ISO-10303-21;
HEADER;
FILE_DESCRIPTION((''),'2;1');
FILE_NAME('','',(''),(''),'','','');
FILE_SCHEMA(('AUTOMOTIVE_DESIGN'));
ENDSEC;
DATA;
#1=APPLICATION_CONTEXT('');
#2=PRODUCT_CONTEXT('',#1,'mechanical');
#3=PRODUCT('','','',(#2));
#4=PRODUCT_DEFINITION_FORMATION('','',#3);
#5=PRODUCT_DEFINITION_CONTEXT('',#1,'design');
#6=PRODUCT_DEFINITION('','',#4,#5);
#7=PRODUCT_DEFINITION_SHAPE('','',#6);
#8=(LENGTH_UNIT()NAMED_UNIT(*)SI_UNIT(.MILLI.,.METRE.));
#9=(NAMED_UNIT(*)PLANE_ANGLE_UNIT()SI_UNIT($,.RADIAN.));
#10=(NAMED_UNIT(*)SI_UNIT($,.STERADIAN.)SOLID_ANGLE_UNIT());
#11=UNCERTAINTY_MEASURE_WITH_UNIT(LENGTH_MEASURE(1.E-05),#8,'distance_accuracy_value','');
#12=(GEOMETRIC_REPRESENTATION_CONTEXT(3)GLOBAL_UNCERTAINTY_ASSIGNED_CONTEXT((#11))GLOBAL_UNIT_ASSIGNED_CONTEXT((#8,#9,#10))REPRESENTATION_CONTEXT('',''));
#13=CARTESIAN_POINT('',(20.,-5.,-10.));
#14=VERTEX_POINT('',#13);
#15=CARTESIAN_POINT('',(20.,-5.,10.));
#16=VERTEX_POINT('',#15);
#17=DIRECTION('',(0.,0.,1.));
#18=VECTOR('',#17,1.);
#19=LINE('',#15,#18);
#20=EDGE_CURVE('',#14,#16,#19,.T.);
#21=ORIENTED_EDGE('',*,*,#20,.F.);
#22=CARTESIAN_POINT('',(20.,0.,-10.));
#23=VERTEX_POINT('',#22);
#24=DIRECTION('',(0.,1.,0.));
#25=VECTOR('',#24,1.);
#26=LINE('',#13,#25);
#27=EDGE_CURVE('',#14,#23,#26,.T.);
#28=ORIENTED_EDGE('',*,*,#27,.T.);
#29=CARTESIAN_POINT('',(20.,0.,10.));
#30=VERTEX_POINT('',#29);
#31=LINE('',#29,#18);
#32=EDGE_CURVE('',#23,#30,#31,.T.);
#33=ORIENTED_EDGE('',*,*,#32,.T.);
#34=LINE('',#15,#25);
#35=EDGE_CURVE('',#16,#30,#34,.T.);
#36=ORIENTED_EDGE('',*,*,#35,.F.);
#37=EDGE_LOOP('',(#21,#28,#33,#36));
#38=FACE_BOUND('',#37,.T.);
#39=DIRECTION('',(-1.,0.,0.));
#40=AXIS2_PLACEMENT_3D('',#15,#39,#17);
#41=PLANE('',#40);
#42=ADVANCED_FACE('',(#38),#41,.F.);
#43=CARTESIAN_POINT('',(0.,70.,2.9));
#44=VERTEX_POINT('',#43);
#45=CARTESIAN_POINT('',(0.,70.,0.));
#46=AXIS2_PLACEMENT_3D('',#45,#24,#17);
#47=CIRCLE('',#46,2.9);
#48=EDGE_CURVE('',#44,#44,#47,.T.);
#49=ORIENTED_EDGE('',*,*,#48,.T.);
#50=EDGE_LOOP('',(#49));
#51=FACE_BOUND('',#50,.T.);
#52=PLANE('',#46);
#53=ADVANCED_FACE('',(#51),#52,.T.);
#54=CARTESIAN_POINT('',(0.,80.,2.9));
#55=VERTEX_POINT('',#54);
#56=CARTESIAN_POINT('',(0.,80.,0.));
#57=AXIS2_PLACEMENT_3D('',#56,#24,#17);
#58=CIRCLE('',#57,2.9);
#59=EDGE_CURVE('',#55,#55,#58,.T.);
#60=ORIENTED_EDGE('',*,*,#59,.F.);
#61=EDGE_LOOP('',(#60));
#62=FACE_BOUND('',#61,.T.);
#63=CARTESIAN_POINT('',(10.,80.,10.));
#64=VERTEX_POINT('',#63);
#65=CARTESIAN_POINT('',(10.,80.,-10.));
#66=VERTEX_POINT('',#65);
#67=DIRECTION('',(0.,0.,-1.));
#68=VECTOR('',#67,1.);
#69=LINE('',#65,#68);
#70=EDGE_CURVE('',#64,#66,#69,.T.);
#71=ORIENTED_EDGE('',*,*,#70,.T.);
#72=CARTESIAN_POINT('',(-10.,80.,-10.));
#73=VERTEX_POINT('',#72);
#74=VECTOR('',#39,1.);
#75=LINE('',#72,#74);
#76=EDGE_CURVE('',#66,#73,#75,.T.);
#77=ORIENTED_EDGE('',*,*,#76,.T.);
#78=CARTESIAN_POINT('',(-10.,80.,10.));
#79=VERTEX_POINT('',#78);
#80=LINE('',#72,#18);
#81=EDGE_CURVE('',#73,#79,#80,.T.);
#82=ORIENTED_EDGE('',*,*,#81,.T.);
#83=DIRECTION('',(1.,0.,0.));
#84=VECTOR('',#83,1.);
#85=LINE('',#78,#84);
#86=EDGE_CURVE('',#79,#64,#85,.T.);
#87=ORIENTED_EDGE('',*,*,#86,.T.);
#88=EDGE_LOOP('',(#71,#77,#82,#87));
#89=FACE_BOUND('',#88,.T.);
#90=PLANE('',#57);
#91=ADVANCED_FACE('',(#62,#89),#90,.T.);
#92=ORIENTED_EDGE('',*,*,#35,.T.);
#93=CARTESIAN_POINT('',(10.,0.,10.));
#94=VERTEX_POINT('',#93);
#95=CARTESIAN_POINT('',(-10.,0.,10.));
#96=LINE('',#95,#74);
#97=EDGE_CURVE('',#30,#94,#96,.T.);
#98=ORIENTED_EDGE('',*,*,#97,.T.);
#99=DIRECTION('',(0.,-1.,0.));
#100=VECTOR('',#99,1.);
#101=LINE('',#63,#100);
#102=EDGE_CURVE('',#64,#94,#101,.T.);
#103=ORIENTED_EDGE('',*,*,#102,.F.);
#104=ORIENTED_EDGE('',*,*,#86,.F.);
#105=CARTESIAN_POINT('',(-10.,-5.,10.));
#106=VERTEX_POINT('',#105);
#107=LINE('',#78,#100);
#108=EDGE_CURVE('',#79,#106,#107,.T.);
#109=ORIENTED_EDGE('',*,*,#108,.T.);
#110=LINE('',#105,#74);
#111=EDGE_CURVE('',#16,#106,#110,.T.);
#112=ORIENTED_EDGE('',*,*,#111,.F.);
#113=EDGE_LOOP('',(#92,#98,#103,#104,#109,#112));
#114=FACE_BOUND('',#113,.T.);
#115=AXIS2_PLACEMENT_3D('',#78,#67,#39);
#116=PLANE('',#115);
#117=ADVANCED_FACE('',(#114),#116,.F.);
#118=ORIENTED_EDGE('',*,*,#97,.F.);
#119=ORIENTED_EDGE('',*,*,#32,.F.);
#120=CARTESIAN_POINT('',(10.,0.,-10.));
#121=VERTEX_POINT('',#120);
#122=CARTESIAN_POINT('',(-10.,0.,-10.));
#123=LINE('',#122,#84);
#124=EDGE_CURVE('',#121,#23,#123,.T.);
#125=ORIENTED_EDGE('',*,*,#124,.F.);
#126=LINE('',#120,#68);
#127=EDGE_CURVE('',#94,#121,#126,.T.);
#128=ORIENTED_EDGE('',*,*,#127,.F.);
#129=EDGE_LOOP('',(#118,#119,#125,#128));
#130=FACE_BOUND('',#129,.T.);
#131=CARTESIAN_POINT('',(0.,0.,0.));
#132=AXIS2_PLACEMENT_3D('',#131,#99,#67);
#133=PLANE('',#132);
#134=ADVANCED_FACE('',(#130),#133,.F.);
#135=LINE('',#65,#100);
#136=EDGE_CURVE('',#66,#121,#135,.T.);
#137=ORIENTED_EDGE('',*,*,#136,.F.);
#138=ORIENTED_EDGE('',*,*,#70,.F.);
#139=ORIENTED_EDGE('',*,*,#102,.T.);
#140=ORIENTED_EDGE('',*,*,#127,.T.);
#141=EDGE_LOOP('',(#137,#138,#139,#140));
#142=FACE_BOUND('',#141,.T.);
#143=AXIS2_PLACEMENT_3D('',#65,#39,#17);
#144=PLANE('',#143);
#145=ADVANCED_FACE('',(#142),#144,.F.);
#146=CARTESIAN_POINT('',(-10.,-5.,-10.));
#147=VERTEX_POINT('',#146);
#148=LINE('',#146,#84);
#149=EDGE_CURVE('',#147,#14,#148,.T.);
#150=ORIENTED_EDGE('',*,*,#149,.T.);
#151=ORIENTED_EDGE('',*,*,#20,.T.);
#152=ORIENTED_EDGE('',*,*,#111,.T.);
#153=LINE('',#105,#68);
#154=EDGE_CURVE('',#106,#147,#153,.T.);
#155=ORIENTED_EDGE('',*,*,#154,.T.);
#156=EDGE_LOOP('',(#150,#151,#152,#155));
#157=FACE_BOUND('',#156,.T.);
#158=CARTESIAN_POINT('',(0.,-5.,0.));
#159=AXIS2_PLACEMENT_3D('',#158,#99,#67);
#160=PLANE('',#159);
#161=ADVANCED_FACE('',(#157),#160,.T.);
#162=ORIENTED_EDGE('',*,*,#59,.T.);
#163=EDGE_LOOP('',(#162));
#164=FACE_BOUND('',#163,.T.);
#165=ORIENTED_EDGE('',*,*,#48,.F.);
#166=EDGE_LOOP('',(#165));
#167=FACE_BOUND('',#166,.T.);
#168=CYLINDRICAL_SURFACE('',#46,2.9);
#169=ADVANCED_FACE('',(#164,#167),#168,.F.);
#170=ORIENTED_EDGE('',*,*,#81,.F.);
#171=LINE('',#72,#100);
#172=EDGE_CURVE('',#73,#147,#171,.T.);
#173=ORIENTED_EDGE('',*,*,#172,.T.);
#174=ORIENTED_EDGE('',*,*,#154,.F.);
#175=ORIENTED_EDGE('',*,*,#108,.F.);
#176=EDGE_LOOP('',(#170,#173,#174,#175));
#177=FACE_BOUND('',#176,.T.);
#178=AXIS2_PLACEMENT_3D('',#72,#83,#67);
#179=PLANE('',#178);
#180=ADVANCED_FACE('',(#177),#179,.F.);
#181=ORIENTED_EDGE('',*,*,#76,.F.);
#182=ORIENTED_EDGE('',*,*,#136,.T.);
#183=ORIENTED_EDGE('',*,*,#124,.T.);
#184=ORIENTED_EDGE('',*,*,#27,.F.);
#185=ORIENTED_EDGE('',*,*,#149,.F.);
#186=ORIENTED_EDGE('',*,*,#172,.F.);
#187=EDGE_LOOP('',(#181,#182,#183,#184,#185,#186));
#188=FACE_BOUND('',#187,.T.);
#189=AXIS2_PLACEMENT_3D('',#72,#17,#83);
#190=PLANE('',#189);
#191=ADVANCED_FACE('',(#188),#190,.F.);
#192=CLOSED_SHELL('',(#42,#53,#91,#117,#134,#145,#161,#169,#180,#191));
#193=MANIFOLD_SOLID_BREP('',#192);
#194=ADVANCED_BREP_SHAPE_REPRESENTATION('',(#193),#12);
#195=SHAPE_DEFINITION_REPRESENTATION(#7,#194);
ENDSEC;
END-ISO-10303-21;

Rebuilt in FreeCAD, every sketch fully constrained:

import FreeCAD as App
import Part
import Sketcher
from FreeCAD import Vector
Q = App.Units.Quantity


def add_polygon(sketch, points):
    """Adds a closed chain of lines whose ends are joined by coincident constraints."""
    first, n = sketch.GeometryCount, len(points)
    for a, b in zip(points, points[1:] + points[:1]):
        sketch.addGeometry(Part.LineSegment(App.Vector(*a, 0), App.Vector(*b, 0)), False)
    for i in range(n):
        sketch.addConstraint(Sketcher.Constraint("Coincident", first + i, 2, first + (i + 1) % n, 1))

doc = App.newDocument("Part")
body = doc.addObject("PartDesign::Body", "Body")

# Sketch on XZ plane
sketch1 = body.newObject("Sketcher::SketchObject", "Sketch")
sketch1.AttachmentSupport = (doc.getObject("XZ_Plane"), [""])
sketch1.MapMode = "FlatFace"
add_polygon(sketch1, [(-10, -10), (-10, 10), (10, 10), (10, -10)])  # lines 0-3
sketch1.addConstraint(Sketcher.Constraint("Vertical", 0))
sketch1.addConstraint(Sketcher.Constraint("Horizontal", 1))
sketch1.addConstraint(Sketcher.Constraint("Vertical", 2))
sketch1.addConstraint(Sketcher.Constraint("Horizontal", 3))
sketch1.addConstraint(Sketcher.Constraint("Symmetric", 0, 2, 2, 2, -1, 1))
sketch1.addConstraint(Sketcher.Constraint("Equal", 3, 0))
sketch1.addConstraint(Sketcher.Constraint("DistanceX", 1, 1, 1, 2, Q("20 mm")))
pad1 = body.newObject("PartDesign::Pad", "Pad")
pad1.Profile = sketch1
pad1.Length = 80
pad1.Reversed = True

# Sketch on XZ plane
sketch2 = body.newObject("Sketcher::SketchObject", "Sketch001")
sketch2.AttachmentSupport = (doc.getObject("XZ_Plane"), [""])
sketch2.MapMode = "FlatFace"
add_polygon(sketch2, [(20, -10), (20, 10), (-10, 10), (-10, -10)])  # lines 0-3
sketch2.addConstraint(Sketcher.Constraint("Vertical", 0))
sketch2.addConstraint(Sketcher.Constraint("Horizontal", 1))
sketch2.addConstraint(Sketcher.Constraint("Vertical", 2))
sketch2.addConstraint(Sketcher.Constraint("Horizontal", 3))
sketch2.addConstraint(Sketcher.Constraint("DistanceX", 1, 2, 1, 1, Q("30 mm")))
sketch2.addConstraint(Sketcher.Constraint("DistanceY", 0, 1, 0, 2, Q("20 mm")))
sketch2.addConstraint(Sketcher.Constraint("DistanceX", -1, 1, 0, 2, Q("20 mm")))
sketch2.addConstraint(Sketcher.Constraint("DistanceY", -1, 1, 0, 2, Q("10 mm")))
pad2 = body.newObject("PartDesign::Pad", "Pad001")
pad2.Profile = sketch2
pad2.Length = 5

# Sketch on XZ plane
sketch3 = body.newObject("Sketcher::SketchObject", "Sketch002")
sketch3.AttachmentSupport = (doc.getObject("XZ_Plane"), [""])
sketch3.MapMode = "FlatFace"
sketch3.AttachmentOffset = App.Placement(Vector(0, 0, -80), App.Rotation())
sketch3.addGeometry(Part.Circle(Vector(0, 0, 0), Vector(0, 0, 1), 2.9), False)
sketch3.addConstraint(Sketcher.Constraint("Coincident", 0, 3, -1, 1))
sketch3.addConstraint(Sketcher.Constraint("Diameter", 0, Q("5.8 mm")))
pocket1 = body.newObject("PartDesign::Pocket", "Pocket")
pocket1.Profile = sketch3
pocket1.Length = 10
pocket1.Reversed = True

doc.recompute()
